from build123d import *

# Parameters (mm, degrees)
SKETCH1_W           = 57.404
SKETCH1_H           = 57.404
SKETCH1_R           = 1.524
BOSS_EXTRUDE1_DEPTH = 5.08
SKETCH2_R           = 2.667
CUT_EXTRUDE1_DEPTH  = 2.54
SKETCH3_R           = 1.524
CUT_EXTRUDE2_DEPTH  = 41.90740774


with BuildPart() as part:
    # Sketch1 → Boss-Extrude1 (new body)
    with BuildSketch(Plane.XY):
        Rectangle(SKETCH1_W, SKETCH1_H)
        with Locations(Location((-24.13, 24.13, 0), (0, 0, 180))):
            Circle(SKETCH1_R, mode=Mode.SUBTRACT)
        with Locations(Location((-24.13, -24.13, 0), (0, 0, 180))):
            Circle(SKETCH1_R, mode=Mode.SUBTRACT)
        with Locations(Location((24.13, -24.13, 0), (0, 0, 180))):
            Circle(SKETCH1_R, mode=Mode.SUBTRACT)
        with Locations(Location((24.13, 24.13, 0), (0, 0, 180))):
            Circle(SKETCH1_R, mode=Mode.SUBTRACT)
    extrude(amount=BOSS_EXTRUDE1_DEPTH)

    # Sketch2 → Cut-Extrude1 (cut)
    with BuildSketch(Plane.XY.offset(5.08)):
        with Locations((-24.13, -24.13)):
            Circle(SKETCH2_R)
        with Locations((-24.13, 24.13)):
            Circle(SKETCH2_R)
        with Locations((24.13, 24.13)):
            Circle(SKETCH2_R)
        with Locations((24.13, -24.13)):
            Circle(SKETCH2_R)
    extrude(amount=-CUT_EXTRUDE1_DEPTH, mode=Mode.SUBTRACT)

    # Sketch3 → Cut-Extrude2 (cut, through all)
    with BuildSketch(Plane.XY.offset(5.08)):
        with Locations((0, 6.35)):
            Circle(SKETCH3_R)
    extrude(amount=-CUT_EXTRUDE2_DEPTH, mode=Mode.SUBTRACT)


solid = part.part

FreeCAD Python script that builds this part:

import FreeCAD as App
import Part
import Sketcher
Q = App.Units.Quantity


def add_polygon(sketch, points):
    """Adds a closed chain of lines whose ends are joined by coincident constraints."""
    first, n = sketch.GeometryCount, len(points)
    for a, b in zip(points, points[1:] + points[:1]):
        sketch.addGeometry(Part.LineSegment(App.Vector(*a, 0), App.Vector(*b, 0)), False)
    for i in range(n):
        sketch.addConstraint(Sketcher.Constraint("Coincident", first + i, 2, first + (i + 1) % n, 1))

doc = App.newDocument("Part")
body = doc.addObject("PartDesign::Body", "Body")

# Sketch on XY plane
sketch1 = body.newObject("Sketcher::SketchObject", "Sketch")
sketch1.AttachmentSupport = (doc.getObject("XY_Plane"), [""])
sketch1.MapMode = "FlatFace"
add_polygon(sketch1, [(-28.702, 28.702), (-28.702, -28.702), (28.702, -28.702), (28.702, 28.702)])  # lines 0-3
sketch1.addGeometry(Part.Circle(App.Vector(-24.13, -24.13, 0), App.Vector(0, 0, 1), 1.524), False)  # 4
sketch1.addGeometry(Part.Circle(App.Vector(24.13, -24.13, 0), App.Vector(0, 0, 1), 1.524), False)  # 5
sketch1.addGeometry(Part.Circle(App.Vector(-24.13, 24.13, 0), App.Vector(0, 0, 1), 1.524), False)  # 6
sketch1.addGeometry(Part.Circle(App.Vector(24.13, 24.13, 0), App.Vector(0, 0, 1), 1.524), False)  # 7
sketch1.addConstraint(Sketcher.Constraint("Vertical", 0))
sketch1.addConstraint(Sketcher.Constraint("Horizontal", 1))
sketch1.addConstraint(Sketcher.Constraint("Vertical", 2))
sketch1.addConstraint(Sketcher.Constraint("Horizontal", 3))
sketch1.addConstraint(Sketcher.Constraint("Equal", 4, 5))
sketch1.addConstraint(Sketcher.Constraint("Equal", 5, 6))
sketch1.addConstraint(Sketcher.Constraint("Equal", 6, 7))
sketch1.addConstraint(Sketcher.Constraint("Symmetric", 5, 3, 6, 3, -1, 1))
sketch1.addConstraint(Sketcher.Constraint("Symmetric", 4, 3, 7, 3, -1, 1))
sketch1.addConstraint(Sketcher.Constraint("Symmetric", 0, 2, 2, 2, -1, 1))
sketch1.addConstraint(Sketcher.Constraint("Symmetric", 4, 3, 5, 3, -2))
sketch1.addConstraint(Sketcher.Constraint("Equal", 3, 0))
sketch1.addConstraint(Sketcher.Constraint("Diameter", 4, Q("0.12 in")))
sketch1.addConstraint(Sketcher.Constraint("DistanceX", 1, 1, 1, 2, Q("2.26 in")))
sketch1.addConstraint(Sketcher.Constraint("DistanceX", 4, 3, 5, 3, Q("1.9 in")))
sketch1.addConstraint(Sketcher.Constraint("DistanceY", 4, 3, 6, 3, Q("1.9 in")))
pad1 = body.newObject("PartDesign::Pad", "Pad")
pad1.Profile = sketch1
pad1.Length = Q("0.2 in")

# Sketch on XY plane
sketch2 = body.newObject("Sketcher::SketchObject", "Sketch001")
sketch2.AttachmentSupport = (doc.getObject("XY_Plane"), [""])
sketch2.MapMode = "FlatFace"
sketch2.AttachmentOffset = App.Placement(App.Vector(0, 0, 0.2 * 25.4), App.Rotation())
sketch2.addGeometry(Part.Circle(App.Vector(-24.13, -24.13, 0), App.Vector(0, 0, 1), 2.667), False)
sketch2.addGeometry(Part.Circle(App.Vector(-24.13, 24.13, 0), App.Vector(0, 0, 1), 2.667), False)
sketch2.addGeometry(Part.Circle(App.Vector(24.13, 24.13, 0), App.Vector(0, 0, 1), 2.667), False)
sketch2.addGeometry(Part.Circle(App.Vector(24.13, -24.13, 0), App.Vector(0, 0, 1), 2.667), False)
sketch2.addConstraint(Sketcher.Constraint("Equal", 0, 1))
sketch2.addConstraint(Sketcher.Constraint("Equal", 1, 2))
sketch2.addConstraint(Sketcher.Constraint("Equal", 2, 3))
sketch2.addConstraint(Sketcher.Constraint("Symmetric", 0, 3, 2, 3, -1, 1))
sketch2.addConstraint(Sketcher.Constraint("Symmetric", 1, 3, 3, 3, -1, 1))
sketch2.addConstraint(Sketcher.Constraint("Symmetric", 1, 3, 2, 3, -2))
sketch2.addConstraint(Sketcher.Constraint("Diameter", 0, Q("0.21 in")))
sketch2.addConstraint(Sketcher.Constraint("DistanceY", 0, 3, 1, 3, Q("1.9 in")))
sketch2.addConstraint(Sketcher.Constraint("DistanceX", 1, 3, 2, 3, Q("1.9 in")))
pocket1 = body.newObject("PartDesign::Pocket", "Pocket")
pocket1.Profile = sketch2
pocket1.Length = Q("0.1 in")

# Sketch on XY plane
sketch3 = body.newObject("Sketcher::SketchObject", "Sketch002")
sketch3.AttachmentSupport = (doc.getObject("XY_Plane"), [""])
sketch3.MapMode = "FlatFace"
sketch3.AttachmentOffset = App.Placement(App.Vector(0, 0, 0.2 * 25.4), App.Rotation())
sketch3.addGeometry(Part.Circle(App.Vector(0, 6.35, 0), App.Vector(0, 0, 1), 1.524), False)
sketch3.addConstraint(Sketcher.Constraint("PointOnObject", 0, 3, -2))
sketch3.addConstraint(Sketcher.Constraint("Diameter", 0, Q("0.12 in")))
sketch3.addConstraint(Sketcher.Constraint("DistanceY", -1, 1, 0, 3, Q("0.25 in")))
pocket2 = body.newObject("PartDesign::Pocket", "Pocket001")
pocket2.Profile = sketch3
pocket2.Type = "ThroughAll"

doc.recompute()
